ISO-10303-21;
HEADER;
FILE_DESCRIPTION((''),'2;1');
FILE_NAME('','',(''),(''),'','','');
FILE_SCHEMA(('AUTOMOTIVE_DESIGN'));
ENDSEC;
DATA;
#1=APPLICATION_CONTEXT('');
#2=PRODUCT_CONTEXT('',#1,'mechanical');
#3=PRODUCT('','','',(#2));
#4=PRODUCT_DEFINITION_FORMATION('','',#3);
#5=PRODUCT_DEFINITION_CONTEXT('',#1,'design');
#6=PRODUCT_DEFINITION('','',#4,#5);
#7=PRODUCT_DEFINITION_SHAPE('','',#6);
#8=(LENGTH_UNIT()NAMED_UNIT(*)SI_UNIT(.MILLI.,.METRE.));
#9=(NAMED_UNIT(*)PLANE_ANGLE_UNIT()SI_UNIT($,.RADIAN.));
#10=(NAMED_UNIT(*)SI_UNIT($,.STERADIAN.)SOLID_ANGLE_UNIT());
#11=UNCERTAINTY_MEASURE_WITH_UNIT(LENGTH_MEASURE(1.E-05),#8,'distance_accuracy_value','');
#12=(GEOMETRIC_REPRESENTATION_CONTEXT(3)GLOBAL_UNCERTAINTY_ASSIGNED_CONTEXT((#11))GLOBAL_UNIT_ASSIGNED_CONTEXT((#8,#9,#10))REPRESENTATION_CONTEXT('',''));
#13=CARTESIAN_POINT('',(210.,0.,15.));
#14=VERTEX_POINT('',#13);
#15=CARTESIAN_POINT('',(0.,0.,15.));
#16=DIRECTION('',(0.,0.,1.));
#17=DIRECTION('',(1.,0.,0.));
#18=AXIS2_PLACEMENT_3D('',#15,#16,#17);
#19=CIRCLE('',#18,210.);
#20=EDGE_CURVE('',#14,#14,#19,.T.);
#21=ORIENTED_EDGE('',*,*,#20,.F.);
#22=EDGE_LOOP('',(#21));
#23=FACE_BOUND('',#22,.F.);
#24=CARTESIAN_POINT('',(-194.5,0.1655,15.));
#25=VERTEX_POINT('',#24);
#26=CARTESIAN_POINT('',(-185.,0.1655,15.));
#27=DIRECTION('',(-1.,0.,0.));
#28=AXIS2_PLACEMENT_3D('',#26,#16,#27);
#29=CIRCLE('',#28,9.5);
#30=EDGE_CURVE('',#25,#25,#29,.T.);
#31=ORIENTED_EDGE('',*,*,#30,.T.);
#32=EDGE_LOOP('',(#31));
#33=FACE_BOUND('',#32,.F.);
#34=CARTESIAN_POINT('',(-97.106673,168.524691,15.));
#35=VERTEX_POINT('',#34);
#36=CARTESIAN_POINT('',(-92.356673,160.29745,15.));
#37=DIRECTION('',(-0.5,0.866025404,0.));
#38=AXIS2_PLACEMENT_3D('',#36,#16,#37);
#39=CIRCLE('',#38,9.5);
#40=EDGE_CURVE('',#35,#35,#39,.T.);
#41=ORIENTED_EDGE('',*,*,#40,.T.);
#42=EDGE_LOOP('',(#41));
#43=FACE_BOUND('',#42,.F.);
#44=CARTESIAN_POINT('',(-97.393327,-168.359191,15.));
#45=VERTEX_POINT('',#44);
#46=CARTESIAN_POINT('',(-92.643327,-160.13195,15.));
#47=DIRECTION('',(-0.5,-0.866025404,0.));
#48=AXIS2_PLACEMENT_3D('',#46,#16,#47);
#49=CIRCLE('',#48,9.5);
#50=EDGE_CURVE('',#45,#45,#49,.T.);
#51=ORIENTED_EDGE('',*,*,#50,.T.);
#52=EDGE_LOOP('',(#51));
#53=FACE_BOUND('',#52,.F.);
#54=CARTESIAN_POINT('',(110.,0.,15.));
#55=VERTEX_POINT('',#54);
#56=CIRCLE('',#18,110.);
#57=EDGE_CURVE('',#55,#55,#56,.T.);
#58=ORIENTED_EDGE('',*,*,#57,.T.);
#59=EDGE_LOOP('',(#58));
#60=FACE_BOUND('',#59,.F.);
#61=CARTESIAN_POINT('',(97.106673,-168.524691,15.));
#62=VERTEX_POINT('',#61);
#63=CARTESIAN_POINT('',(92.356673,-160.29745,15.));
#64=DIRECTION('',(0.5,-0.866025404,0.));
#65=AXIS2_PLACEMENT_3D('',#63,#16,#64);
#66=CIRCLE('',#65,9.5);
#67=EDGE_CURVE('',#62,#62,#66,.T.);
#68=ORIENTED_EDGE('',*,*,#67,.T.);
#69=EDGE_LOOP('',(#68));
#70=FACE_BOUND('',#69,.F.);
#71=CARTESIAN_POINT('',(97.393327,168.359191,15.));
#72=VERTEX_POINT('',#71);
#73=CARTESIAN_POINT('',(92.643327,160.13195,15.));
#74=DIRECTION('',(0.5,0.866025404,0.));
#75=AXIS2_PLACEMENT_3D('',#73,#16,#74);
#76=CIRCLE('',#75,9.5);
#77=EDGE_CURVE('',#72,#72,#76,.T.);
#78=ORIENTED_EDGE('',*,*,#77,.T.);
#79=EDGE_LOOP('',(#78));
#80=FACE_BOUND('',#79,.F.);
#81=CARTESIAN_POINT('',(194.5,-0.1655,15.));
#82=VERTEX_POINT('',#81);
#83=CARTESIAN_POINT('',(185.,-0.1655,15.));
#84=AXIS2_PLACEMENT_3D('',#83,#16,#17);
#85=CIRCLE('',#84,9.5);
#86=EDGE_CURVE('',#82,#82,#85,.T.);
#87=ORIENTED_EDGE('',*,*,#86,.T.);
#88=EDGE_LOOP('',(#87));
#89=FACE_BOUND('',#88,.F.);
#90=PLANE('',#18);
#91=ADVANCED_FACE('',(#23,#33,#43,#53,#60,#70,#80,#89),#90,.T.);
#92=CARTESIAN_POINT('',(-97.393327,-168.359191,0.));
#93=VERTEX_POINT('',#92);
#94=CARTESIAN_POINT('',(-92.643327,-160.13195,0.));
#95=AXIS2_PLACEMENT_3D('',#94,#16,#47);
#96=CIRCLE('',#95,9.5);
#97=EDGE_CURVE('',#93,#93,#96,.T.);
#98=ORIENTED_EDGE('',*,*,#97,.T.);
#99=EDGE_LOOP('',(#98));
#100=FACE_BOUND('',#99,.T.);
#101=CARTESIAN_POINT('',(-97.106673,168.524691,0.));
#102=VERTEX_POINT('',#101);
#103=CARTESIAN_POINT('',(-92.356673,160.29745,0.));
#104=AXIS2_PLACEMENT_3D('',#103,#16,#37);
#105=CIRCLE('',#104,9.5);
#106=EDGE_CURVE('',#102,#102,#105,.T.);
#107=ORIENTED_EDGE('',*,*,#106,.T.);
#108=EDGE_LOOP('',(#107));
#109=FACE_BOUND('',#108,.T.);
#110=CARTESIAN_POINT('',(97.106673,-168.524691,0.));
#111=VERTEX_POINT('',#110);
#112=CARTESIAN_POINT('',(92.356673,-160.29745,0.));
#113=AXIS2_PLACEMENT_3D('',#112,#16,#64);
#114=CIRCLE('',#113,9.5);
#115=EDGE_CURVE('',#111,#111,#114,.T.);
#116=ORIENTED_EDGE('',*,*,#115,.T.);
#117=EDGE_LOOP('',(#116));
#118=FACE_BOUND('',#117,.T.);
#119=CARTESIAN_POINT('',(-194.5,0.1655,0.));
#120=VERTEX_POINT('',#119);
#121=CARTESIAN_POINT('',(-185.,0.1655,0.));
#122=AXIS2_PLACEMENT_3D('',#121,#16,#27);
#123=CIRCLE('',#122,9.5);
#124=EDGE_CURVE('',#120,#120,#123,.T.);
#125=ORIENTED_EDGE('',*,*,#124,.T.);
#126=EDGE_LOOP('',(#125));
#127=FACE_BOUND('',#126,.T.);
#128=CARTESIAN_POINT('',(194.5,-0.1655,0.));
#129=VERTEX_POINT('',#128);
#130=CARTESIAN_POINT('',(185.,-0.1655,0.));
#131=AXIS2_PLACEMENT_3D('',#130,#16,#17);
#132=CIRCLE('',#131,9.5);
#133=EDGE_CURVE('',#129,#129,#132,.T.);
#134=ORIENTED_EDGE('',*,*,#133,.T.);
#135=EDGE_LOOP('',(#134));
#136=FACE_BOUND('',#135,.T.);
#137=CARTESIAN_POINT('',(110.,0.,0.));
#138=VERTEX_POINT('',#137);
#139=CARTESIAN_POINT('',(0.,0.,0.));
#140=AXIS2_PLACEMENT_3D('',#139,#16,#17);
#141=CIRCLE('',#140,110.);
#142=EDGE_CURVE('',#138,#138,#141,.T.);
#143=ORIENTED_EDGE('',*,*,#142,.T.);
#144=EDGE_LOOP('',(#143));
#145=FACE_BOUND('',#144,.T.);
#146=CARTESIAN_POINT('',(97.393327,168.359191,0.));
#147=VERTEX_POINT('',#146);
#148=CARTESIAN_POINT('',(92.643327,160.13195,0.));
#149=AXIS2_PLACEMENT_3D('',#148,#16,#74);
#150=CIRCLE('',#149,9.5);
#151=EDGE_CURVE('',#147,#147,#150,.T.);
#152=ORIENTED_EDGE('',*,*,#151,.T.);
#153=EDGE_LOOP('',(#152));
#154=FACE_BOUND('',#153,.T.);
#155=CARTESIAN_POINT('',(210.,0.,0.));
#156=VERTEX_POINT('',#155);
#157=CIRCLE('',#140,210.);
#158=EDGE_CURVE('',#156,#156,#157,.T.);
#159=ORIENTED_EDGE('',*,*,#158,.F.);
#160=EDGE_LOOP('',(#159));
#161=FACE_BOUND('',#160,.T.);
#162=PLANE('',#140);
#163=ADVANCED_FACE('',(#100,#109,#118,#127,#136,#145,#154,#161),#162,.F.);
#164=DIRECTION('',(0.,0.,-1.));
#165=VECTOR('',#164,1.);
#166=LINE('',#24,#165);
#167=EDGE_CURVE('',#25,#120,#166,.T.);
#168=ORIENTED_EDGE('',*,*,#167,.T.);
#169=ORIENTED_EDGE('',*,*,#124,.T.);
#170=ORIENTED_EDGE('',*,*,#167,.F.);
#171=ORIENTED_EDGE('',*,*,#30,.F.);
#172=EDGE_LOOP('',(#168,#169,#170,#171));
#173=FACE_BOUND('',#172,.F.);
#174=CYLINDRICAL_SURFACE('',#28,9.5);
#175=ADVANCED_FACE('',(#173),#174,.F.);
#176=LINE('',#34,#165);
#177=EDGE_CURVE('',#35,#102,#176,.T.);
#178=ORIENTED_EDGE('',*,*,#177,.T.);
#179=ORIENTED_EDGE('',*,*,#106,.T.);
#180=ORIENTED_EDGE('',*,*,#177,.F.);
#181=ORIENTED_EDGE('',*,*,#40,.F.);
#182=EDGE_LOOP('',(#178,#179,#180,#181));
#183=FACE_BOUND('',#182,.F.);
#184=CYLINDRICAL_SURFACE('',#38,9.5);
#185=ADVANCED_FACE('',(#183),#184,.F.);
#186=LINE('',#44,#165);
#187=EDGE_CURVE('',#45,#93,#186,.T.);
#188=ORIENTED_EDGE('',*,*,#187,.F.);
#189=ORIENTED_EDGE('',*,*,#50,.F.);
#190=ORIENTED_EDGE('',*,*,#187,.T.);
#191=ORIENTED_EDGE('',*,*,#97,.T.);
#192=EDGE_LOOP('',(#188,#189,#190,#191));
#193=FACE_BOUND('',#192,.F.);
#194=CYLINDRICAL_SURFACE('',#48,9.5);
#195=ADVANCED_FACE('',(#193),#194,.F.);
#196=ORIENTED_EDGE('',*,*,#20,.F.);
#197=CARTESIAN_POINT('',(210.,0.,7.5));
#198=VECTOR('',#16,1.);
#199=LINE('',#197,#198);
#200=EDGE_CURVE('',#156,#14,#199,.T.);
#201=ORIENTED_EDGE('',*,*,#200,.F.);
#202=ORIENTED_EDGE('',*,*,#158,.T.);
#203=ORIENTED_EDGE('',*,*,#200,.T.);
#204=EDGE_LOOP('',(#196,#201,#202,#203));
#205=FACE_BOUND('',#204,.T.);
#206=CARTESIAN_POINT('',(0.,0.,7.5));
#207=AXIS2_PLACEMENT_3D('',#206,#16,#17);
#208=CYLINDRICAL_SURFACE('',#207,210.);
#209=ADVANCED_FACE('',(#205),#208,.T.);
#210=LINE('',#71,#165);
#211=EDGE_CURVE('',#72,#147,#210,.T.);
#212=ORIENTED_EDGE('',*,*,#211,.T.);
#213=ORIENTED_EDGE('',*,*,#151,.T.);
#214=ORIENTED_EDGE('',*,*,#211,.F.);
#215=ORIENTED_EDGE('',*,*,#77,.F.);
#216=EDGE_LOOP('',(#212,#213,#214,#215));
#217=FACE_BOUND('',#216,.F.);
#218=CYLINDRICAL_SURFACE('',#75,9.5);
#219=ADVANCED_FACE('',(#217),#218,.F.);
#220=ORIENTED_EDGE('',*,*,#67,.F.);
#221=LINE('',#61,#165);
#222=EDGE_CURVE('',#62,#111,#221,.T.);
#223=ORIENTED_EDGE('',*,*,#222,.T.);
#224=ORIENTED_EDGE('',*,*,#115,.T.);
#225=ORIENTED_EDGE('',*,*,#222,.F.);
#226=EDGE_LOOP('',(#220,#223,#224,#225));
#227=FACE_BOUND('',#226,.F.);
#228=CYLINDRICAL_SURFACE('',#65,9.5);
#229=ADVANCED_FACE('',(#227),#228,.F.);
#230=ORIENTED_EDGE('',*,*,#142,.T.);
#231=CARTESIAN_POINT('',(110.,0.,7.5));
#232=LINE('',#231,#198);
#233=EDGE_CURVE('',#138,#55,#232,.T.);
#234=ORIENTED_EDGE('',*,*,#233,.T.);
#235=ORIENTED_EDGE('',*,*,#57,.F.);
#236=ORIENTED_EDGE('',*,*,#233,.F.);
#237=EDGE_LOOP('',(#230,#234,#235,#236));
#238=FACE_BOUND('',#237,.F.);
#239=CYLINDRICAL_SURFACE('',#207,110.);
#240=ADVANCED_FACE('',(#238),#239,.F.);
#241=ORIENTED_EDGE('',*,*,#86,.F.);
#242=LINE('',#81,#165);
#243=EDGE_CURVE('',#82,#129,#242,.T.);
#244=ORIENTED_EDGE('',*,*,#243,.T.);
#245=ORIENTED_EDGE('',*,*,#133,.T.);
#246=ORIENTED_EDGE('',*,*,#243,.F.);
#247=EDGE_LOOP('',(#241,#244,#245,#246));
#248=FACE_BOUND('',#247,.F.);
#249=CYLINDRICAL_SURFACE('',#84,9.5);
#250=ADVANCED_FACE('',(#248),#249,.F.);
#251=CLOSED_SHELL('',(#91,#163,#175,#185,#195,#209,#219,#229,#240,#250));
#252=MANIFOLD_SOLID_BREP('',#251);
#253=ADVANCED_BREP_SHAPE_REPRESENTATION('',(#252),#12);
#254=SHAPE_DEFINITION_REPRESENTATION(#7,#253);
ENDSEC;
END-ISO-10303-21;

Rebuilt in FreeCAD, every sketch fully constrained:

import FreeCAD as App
import Part
import Sketcher
from FreeCAD import Vector


def add_polygon(sketch, points):
    """Adds a closed chain of lines whose ends are joined by coincident constraints."""
    first, n = sketch.GeometryCount, len(points)
    for a, b in zip(points, points[1:] + points[:1]):
        sketch.addGeometry(Part.LineSegment(App.Vector(*a, 0), App.Vector(*b, 0)), False)
    for i in range(n):
        sketch.addConstraint(Sketcher.Constraint("Coincident", first + i, 2, first + (i + 1) % n, 1))

doc = App.newDocument("Part")
params = doc.addObject("Spreadsheet::Sheet", "Params")
for row, (alias, value) in enumerate([
    ("sketch1_diameter", "19 mm"),
    ("pad1_length", "30 mm"),
    ("sketch2_width", "100 mm"),
    ("sketch2_height", "15 mm"),
    ("revolution_angle", "360 deg"),
], start=1):
    params.set(f"A{row}", alias)
    params.set(f"B{row}", "=" + value)
    params.setAlias(f"B{row}", alias)

body = doc.addObject("PartDesign::Body", "Body")

sketch1 = body.newObject("Sketcher::SketchObject", "Sketch")
sketch1.AttachmentSupport = (doc.getObject("XY_Plane"), [""])
sketch1.MapMode = "FlatFace"
sketch1.AttachmentOffset = App.Placement(Vector(0, 0, 15), App.Rotation())
sketch1.addGeometry(Part.Circle(Vector(185, -0.1655, 0), Vector(0, 0, 1), 9.5), False)
sketch1.addConstraint(Sketcher.Constraint("Diameter", 0, 19.0))
sketch1.addConstraint(Sketcher.Constraint("DistanceX", -1, 1, 0, 3, 185.0))
sketch1.addConstraint(Sketcher.Constraint("DistanceY", 0, 3, -1, 1, 0.1655))
sketch1.setExpression("Constraints[0]", "Params.sketch1_diameter")
pad1 = body.newObject("PartDesign::Pad", "Pad")
pad1.Profile = sketch1
pad1.setExpression("Length", "Params.pad1_length")
pad1.Reversed = True
body2 = doc.addObject("PartDesign::Body", "Body001")
body2.AllowCompound = True
doc.recompute()

body2.BaseFeature = body
doc.recompute()

body3 = doc.addObject("PartDesign::Body", "Body002")
body3.BaseFeature = body
body3.Placement = App.Placement(Vector(0, 0, 0), App.Rotation(Vector(0, 0, 1), 60))
boolean = body2.newObject("PartDesign::Boolean", "Boolean")
boolean.Type = "Fuse"
boolean.addObjects([body3])
doc.recompute()

body4 = doc.addObject("PartDesign::Body", "Body003")
body4.BaseFeature = body
body4.Placement = App.Placement(Vector(0, 0, 0), App.Rotation(Vector(0, 0, 1), 120))
boolean2 = body2.newObject("PartDesign::Boolean", "Boolean001")
boolean2.Type = "Fuse"
boolean2.addObjects([body4])
doc.recompute()

body5 = doc.addObject("PartDesign::Body", "Body004")
body5.BaseFeature = body
body5.Placement = App.Placement(Vector(0, 0, 0), App.Rotation(Vector(0, 0, 1), 180))
boolean3 = body2.newObject("PartDesign::Boolean", "Boolean002")
boolean3.Type = "Fuse"
boolean3.addObjects([body5])
doc.recompute()

body6 = doc.addObject("PartDesign::Body", "Body005")
body6.BaseFeature = body
body6.Placement = App.Placement(Vector(0, 0, 0), App.Rotation(Vector(0, 0, 1), 240))
boolean4 = body2.newObject("PartDesign::Boolean", "Boolean003")
boolean4.Type = "Fuse"
boolean4.addObjects([body6])
doc.recompute()

body.Placement = App.Placement(Vector(0, 0, 0), App.Rotation(Vector(0, 0, 1), 300))
boolean5 = body2.newObject("PartDesign::Boolean", "Boolean004")
boolean5.Type = "Fuse"
boolean5.addObjects([body])
body7 = doc.addObject("PartDesign::Body", "Body006")

sketch2 = body7.newObject("Sketcher::SketchObject", "Sketch001")
sketch2.AttachmentSupport = (doc.getObject("XZ_Plane006"), [""])
sketch2.MapMode = "FlatFace"
add_polygon(sketch2, [(110, 15), (110, 0), (210, 0), (210, 15)])
sketch2.addConstraint(Sketcher.Constraint("Vertical", 0))
sketch2.addConstraint(Sketcher.Constraint("Horizontal", 1))
sketch2.addConstraint(Sketcher.Constraint("Vertical", 2))
sketch2.addConstraint(Sketcher.Constraint("Horizontal", 3))
sketch2.addConstraint(Sketcher.Constraint("PointOnObject", 0, 2, -1))
sketch2.addConstraint(Sketcher.Constraint("DistanceX", 1, 1, 1, 2, 100.0))
sketch2.addConstraint(Sketcher.Constraint("DistanceY", 0, 2, 0, 1, 15.0))
sketch2.addConstraint(Sketcher.Constraint("DistanceX", -1, 1, 0, 2, 110.0))
sketch2.setExpression("Constraints[9]", "Params.sketch2_width")
sketch2.setExpression("Constraints[10]", "Params.sketch2_height")
revolution = body7.newObject("PartDesign::Revolution", "Revolution")
revolution.Profile = sketch2
revolution.ReferenceAxis = (sketch2, ["V_Axis"])
revolution.setExpression("Angle", "Params.revolution_angle")
doc.recompute()

boolean6 = body7.newObject("PartDesign::Boolean", "Boolean005")
boolean6.Type = "Cut"
boolean6.addObjects([body2])

doc.recompute()
